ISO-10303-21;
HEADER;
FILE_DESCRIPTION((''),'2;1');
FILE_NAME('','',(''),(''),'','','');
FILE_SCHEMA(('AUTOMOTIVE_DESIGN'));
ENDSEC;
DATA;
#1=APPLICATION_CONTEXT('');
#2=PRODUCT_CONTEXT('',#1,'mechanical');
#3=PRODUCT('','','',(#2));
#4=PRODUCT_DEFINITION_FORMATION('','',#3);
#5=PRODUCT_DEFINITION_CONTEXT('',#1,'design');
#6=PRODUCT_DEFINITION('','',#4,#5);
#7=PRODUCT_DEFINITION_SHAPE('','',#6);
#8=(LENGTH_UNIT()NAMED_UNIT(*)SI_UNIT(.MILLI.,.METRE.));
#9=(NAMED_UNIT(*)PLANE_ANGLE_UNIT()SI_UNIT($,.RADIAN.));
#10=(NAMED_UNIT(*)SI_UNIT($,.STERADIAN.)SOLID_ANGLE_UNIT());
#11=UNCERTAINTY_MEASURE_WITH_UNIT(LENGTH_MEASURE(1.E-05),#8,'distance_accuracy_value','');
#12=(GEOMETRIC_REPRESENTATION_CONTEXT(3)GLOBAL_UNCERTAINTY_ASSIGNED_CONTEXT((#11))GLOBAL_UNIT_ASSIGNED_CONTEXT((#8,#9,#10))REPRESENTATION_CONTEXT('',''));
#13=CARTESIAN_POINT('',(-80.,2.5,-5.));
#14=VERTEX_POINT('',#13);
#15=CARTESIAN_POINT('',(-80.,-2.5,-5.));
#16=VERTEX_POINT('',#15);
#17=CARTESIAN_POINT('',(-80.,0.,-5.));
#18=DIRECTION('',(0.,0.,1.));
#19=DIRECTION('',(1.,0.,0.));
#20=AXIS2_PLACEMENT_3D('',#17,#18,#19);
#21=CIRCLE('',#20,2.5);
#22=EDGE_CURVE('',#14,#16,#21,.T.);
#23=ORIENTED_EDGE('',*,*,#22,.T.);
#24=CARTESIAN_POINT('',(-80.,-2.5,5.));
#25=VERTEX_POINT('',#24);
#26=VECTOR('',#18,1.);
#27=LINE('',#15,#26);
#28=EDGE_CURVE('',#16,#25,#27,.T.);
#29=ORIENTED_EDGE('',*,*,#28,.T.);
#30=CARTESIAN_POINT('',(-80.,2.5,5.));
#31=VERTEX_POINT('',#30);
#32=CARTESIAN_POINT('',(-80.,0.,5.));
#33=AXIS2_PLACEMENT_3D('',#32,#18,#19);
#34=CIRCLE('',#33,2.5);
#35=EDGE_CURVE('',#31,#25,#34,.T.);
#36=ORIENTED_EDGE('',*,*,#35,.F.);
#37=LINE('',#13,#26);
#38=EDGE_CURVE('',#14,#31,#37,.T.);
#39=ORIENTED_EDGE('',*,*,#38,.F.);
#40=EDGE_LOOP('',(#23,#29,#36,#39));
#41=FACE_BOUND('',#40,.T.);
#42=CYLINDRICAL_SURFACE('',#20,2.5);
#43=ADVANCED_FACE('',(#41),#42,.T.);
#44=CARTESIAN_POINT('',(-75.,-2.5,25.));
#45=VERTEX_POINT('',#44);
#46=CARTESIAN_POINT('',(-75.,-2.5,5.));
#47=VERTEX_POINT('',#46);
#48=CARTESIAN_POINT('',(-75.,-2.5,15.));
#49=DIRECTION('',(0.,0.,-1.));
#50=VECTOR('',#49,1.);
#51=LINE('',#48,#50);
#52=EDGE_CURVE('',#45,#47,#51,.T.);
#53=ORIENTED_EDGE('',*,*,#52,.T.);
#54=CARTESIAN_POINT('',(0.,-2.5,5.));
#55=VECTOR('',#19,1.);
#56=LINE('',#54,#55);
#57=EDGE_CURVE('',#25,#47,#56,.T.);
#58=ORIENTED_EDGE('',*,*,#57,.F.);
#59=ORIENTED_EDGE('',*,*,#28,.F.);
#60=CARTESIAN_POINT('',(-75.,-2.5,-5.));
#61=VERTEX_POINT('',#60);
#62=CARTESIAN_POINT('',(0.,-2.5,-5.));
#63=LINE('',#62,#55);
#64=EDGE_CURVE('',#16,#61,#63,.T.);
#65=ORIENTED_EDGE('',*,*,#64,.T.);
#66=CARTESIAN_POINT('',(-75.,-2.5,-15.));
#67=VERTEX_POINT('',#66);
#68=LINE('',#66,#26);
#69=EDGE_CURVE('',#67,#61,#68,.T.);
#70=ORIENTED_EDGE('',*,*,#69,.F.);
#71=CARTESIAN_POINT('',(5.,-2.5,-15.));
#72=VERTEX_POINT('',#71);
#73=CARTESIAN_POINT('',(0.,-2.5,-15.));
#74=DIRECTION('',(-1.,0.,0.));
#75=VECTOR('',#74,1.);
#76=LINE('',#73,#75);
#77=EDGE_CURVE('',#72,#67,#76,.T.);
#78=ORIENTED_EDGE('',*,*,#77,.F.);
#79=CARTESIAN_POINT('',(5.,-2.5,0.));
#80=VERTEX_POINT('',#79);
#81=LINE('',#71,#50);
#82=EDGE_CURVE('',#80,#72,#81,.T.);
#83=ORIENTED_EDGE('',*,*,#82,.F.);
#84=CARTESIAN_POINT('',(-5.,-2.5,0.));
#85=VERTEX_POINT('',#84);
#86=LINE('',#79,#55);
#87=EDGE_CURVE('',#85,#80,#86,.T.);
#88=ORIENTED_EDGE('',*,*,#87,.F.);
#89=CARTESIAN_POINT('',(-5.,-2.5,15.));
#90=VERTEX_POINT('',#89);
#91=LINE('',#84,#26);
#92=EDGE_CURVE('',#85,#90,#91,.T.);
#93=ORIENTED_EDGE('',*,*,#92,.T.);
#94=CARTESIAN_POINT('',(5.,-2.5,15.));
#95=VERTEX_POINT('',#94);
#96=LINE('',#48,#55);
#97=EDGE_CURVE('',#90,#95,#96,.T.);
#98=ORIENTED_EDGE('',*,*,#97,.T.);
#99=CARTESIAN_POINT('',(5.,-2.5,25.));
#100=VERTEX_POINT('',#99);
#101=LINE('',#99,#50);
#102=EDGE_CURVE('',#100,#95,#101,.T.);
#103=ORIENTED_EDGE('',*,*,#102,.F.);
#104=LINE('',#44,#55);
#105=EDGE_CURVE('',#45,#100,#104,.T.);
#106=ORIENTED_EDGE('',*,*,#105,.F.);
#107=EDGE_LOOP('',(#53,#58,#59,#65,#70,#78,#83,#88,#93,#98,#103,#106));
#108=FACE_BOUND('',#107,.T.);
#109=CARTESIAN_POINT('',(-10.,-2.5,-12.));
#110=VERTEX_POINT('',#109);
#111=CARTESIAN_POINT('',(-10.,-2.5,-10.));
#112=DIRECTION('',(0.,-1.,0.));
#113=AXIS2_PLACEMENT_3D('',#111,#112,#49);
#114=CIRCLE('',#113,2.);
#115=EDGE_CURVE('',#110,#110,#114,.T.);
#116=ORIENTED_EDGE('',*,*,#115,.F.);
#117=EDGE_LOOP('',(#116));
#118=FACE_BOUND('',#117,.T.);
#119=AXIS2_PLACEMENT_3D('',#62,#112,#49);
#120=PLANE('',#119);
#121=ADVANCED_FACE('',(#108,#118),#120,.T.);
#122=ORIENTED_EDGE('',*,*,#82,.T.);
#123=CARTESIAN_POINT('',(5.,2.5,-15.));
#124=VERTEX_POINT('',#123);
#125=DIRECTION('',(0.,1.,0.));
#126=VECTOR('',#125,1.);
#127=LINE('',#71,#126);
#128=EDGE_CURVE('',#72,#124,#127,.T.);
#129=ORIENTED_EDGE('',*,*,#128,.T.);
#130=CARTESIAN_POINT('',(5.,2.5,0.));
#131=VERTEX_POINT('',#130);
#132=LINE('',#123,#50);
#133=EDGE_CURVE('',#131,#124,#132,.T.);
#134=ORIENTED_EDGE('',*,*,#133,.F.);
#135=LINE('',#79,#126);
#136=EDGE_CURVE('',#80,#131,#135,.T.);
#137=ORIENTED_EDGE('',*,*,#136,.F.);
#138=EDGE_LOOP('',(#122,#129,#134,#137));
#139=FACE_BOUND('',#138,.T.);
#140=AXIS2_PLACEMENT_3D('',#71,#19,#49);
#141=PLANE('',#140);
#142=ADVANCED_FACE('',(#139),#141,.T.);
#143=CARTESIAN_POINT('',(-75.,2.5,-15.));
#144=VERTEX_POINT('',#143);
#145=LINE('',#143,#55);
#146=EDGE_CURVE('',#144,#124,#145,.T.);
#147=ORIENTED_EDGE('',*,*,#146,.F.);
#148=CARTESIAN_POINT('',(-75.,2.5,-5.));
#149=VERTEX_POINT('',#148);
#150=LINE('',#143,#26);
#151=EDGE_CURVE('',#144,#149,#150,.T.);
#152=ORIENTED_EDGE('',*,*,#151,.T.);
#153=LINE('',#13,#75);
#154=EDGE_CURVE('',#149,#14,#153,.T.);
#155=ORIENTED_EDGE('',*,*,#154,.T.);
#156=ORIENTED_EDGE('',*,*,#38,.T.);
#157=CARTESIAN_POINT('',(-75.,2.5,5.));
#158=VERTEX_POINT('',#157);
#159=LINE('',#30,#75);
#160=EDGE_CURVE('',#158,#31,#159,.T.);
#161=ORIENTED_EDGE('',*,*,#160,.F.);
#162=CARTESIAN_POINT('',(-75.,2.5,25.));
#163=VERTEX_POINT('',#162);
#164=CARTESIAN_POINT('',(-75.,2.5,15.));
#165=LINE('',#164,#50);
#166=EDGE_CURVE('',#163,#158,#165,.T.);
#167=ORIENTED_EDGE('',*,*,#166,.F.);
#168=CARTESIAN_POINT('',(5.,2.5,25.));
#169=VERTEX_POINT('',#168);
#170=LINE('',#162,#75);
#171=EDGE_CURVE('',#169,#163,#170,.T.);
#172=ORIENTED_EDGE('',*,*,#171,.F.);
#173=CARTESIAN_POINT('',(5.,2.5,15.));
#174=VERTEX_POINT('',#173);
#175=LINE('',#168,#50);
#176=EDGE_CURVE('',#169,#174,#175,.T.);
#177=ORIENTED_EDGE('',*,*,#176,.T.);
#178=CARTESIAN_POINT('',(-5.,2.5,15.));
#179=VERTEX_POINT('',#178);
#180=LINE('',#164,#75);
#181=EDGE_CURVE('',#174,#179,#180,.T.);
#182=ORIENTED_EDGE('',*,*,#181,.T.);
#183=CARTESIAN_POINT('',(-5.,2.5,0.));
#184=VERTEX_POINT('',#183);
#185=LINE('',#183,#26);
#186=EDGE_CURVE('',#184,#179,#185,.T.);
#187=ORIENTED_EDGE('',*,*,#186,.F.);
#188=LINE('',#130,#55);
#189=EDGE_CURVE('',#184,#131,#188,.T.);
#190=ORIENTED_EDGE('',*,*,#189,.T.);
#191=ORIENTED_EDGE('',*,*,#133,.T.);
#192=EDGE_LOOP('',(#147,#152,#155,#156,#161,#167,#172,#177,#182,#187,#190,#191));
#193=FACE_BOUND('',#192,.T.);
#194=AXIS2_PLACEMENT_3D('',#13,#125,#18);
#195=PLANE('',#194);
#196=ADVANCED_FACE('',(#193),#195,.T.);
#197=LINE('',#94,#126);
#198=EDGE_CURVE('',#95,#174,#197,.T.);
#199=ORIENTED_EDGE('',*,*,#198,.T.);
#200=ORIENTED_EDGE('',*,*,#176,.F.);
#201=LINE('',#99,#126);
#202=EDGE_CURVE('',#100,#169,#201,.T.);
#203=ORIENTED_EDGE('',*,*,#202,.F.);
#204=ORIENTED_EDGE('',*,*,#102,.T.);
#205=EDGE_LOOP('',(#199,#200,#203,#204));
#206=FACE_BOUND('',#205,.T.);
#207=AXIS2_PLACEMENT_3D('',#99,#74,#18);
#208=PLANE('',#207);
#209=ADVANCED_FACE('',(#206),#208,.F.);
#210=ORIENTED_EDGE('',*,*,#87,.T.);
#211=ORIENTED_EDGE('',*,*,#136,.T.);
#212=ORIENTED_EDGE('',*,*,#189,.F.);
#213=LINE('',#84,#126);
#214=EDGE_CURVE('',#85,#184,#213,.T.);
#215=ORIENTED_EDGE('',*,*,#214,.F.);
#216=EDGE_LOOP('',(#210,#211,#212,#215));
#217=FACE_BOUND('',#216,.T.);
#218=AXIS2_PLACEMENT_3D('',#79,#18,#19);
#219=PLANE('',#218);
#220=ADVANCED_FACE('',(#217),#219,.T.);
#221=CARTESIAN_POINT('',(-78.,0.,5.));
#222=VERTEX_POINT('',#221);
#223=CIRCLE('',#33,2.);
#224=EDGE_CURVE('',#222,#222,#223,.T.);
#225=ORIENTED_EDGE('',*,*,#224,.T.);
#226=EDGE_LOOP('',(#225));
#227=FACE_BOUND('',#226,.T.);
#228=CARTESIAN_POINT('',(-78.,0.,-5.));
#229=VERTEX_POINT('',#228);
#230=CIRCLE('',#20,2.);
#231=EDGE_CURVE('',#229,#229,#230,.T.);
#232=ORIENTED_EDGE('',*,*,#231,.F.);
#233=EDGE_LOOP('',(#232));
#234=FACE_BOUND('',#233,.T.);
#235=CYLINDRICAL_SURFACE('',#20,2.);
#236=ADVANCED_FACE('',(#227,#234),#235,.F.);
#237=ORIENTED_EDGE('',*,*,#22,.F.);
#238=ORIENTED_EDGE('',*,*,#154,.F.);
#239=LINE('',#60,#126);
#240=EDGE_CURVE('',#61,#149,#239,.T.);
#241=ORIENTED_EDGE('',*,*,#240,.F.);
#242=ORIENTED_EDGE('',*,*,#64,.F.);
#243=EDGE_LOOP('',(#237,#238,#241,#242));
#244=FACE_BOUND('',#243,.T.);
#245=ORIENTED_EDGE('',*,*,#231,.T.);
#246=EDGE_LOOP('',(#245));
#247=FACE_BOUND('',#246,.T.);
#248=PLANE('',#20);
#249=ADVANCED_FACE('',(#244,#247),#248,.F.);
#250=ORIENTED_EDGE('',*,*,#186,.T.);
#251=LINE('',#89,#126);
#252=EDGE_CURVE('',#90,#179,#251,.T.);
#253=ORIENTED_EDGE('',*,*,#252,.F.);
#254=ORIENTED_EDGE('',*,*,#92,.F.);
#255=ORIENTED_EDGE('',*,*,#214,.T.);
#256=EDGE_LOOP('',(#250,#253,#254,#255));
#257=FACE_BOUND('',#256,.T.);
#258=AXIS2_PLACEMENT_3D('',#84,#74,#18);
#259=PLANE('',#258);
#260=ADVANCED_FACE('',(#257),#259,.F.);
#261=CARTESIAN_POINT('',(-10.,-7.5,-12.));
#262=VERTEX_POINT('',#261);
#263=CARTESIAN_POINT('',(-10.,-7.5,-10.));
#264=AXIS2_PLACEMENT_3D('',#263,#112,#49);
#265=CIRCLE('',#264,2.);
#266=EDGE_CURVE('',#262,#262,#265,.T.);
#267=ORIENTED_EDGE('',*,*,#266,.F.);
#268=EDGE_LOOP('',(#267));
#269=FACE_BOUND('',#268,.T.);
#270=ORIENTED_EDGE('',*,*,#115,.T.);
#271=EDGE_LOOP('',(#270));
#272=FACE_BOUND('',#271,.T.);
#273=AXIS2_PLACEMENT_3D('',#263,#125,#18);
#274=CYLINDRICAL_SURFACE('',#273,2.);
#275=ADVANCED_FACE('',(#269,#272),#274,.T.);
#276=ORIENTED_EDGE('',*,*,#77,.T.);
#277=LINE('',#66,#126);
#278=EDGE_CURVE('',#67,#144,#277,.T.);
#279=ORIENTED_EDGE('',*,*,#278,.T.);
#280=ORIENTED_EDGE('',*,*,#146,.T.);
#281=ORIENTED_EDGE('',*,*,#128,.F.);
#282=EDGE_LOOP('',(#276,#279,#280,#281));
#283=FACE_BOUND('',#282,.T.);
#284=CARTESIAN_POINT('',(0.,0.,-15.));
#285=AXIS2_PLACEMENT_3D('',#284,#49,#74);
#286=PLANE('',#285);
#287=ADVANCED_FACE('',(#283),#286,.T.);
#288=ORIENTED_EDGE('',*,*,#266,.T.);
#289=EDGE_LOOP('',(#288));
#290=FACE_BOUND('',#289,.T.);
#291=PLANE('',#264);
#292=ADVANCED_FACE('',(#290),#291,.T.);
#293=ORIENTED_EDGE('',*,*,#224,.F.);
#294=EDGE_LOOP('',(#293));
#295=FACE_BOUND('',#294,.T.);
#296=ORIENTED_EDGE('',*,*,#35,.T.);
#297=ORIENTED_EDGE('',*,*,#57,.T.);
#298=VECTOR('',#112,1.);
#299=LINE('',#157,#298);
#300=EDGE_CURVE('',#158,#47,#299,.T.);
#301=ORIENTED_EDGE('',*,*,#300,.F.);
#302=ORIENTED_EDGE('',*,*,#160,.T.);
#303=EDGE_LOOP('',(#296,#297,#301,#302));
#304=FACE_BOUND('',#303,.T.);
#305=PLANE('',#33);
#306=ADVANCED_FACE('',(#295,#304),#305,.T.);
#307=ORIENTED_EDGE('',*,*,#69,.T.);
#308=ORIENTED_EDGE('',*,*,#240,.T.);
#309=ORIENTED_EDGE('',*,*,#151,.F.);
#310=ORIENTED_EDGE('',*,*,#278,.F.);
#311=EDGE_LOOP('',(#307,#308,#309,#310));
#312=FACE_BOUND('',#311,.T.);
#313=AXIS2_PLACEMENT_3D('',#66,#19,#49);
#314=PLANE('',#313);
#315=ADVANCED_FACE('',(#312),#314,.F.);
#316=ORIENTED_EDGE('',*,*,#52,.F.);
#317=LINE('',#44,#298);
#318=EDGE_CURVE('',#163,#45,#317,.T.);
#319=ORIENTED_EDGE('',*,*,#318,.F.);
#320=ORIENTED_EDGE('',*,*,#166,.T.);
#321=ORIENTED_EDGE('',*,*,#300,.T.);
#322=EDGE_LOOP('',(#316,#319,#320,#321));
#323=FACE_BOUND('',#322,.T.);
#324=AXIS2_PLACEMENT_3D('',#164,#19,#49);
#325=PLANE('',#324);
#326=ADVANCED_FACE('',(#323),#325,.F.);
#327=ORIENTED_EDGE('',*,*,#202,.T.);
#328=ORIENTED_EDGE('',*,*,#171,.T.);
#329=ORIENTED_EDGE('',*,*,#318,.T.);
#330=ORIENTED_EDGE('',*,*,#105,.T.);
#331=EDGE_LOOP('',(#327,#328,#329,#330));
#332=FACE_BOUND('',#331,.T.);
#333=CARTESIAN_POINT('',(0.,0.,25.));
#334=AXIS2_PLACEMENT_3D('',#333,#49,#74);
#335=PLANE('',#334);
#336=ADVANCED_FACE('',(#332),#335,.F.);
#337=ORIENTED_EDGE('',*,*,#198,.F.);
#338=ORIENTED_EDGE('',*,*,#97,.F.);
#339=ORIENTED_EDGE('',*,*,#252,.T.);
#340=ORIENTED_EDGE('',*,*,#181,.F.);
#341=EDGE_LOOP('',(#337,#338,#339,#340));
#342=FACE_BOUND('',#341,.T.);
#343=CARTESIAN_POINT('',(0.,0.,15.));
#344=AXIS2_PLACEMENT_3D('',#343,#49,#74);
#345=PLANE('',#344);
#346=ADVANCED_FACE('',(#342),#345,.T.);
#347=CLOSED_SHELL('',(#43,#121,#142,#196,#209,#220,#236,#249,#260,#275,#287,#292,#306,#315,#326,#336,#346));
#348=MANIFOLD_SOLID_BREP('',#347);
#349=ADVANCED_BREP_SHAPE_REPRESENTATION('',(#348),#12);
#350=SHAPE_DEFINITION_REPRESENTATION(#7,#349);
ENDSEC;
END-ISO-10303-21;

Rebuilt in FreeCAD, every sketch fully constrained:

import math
import FreeCAD as App
import Part
import Sketcher

V = App.Vector


def add_polygon(sketch, points):
    """Adds a closed chain of lines whose ends are joined by coincident constraints."""
    first, n = sketch.GeometryCount, len(points)
    for a, b in zip(points, points[1:] + points[:1]):
        sketch.addGeometry(Part.LineSegment(App.Vector(*a, 0), App.Vector(*b, 0)), False)
    for i in range(n):
        sketch.addConstraint(Sketcher.Constraint("Coincident", first + i, 2, first + (i + 1) % n, 1))

doc = App.newDocument("Part")
body = doc.addObject("PartDesign::Body", "Body")

sketch1 = body.newObject("Sketcher::SketchObject", "Sketch")
sketch1.AttachmentSupport = (doc.getObject("XY_Plane"), [""])
sketch1.MapMode = "FlatFace"
sketch1.addGeometry(Part.LineSegment(V(0, 2.5, 0), V(-80, 2.5, 0)), False)
sketch1.addGeometry(Part.ArcOfCircle(Part.Circle(V(-80, 0, 0), V(0, 0, 1), 2.5), math.radians(90), math.radians(270)), False)
sketch1.addGeometry(Part.LineSegment(V(-80, -2.5, 0), V(0, -2.5, 0)), False)
sketch1.addGeometry(Part.LineSegment(V(0, -2.5, 0), V(0, 2.5, 0)), False)
sketch1.addGeometry(Part.Circle(V(-80, 0, 0), V(0, 0, 1), 2), False)
sketch1.addConstraint(Sketcher.Constraint("Tangent", 0, 2, 1, 1))
sketch1.addConstraint(Sketcher.Constraint("Tangent", 1, 2, 2, 1))
sketch1.addConstraint(Sketcher.Constraint("Coincident", 2, 2, 3, 1))
sketch1.addConstraint(Sketcher.Constraint("Coincident", 3, 2, 0, 1))
sketch1.addConstraint(Sketcher.Constraint("Horizontal", 0))
sketch1.addConstraint(Sketcher.Constraint("Horizontal", 2))
sketch1.addConstraint(Sketcher.Constraint("Vertical", 3))
sketch1.addConstraint(Sketcher.Constraint("Coincident", 4, 3, 1, 3))
sketch1.addConstraint(Sketcher.Constraint("Symmetric", 2, 2, 3, 2, -1, 1))
sketch1.addConstraint(Sketcher.Constraint("Diameter", 4, 4.0))
sketch1.addConstraint(Sketcher.Constraint("Radius", 1, 2.5))
sketch1.addConstraint(Sketcher.Constraint("DistanceX", 0, 2, 0, 1, 80.0))
pad1 = body.newObject("PartDesign::Pad", "Pad")
pad1.Profile = sketch1
pad1.Type = "TwoLengths"
pad1.Length = 5
pad1.Length2 = 5

sketch2 = body.newObject("Sketcher::SketchObject", "Sketch001")
sketch2.AttachmentSupport = (doc.getObject("XY_Plane"), [""])
sketch2.MapMode = "FlatFace"
sketch2.AttachmentOffset = App.Placement(V(0, 0, 5), App.Rotation())
add_polygon(sketch2, [(-75, 2), (-75, -2), (0, -2), (0, 2)])
sketch2.addConstraint(Sketcher.Constraint("Vertical", 0))
sketch2.addConstraint(Sketcher.Constraint("Horizontal", 1))
sketch2.addConstraint(Sketcher.Constraint("Vertical", 2))
sketch2.addConstraint(Sketcher.Constraint("Horizontal", 3))
sketch2.addConstraint(Sketcher.Constraint("Symmetric", 1, 2, 2, 2, -1, 1))
sketch2.addConstraint(Sketcher.Constraint("DistanceX", 1, 1, 1, 2, 75.0))
sketch2.addConstraint(Sketcher.Constraint("DistanceY", 0, 2, 0, 1, 5.0))
pad2 = body.newObject("PartDesign::Pad", "Pad001")
pad2.Profile = sketch2
pad2.Length = 10

sketch3 = body.newObject("Sketcher::SketchObject", "Sketch002")
sketch3.AttachmentSupport = (doc.getObject("XY_Plane"), [""])
sketch3.MapMode = "FlatFace"
sketch3.AttachmentOffset = App.Placement(V(0, 0, -5), App.Rotation())
add_polygon(sketch3, [(0, 2), (0, -2), (-75, -2), (-75, 2)])
sketch3.addConstraint(Sketcher.Constraint("Vertical", 0))
sketch3.addConstraint(Sketcher.Constraint("Horizontal", 1))
sketch3.addConstraint(Sketcher.Constraint("Vertical", 2))
sketch3.addConstraint(Sketcher.Constraint("Horizontal", 3))
sketch3.addConstraint(Sketcher.Constraint("Symmetric", 0, 2, 3, 2, -1, 1))
sketch3.addConstraint(Sketcher.Constraint("DistanceX", 1, 2, 1, 1, 75.0))
sketch3.addConstraint(Sketcher.Constraint("DistanceY", 0, 2, 0, 1, 5.0))
pad3 = body.newObject("PartDesign::Pad", "Pad002")
pad3.Profile = sketch3
pad3.Length = 10
pad3.Reversed = True

sketch4 = body.newObject("Sketcher::SketchObject", "Sketch003")
sketch4.AttachmentSupport = (doc.getObject("XZ_Plane"), [""])
sketch4.MapMode = "FlatFace"
sketch4.AttachmentOffset = App.Placement(V(0, 0, -2.5), App.Rotation())
add_polygon(sketch4, [(0, -15), (0, 0), (5, 0), (5, -15)])
sketch4.addConstraint(Sketcher.Constraint("Vertical", 0))
sketch4.addConstraint(Sketcher.Constraint("Horizontal", 1))
sketch4.addConstraint(Sketcher.Constraint("Vertical", 2))
sketch4.addConstraint(Sketcher.Constraint("Horizontal", 3))
sketch4.addConstraint(Sketcher.Constraint("Coincident", 0, 2, -1, 1))
sketch4.addConstraint(Sketcher.Constraint("DistanceX", 1, 1, 1, 2, 5.0))
sketch4.addConstraint(Sketcher.Constraint("DistanceY", 0, 1, 0, 2, 15.0))
pad4 = body.newObject("PartDesign::Pad", "Pad003")
pad4.Profile = sketch4
pad4.Length = 5

sketch5 = body.newObject("Sketcher::SketchObject", "Sketch004")
sketch5.AttachmentSupport = (doc.getObject("XZ_Plane"), [""])
sketch5.MapMode = "FlatFace"
sketch5.AttachmentOffset = App.Placement(V(0, 0, -2.5), App.Rotation())
add_polygon(sketch5, [(-5, 0), (-5, 15), (0, 15), (0, 0)])
sketch5.addConstraint(Sketcher.Constraint("Vertical", 0))
sketch5.addConstraint(Sketcher.Constraint("Horizontal", 1))
sketch5.addConstraint(Sketcher.Constraint("Vertical", 2))
sketch5.addConstraint(Sketcher.Constraint("Horizontal", 3))
sketch5.addConstraint(Sketcher.Constraint("Coincident", 2, 2, -1, 1))
sketch5.addConstraint(Sketcher.Constraint("DistanceX", 1, 1, 1, 2, 5.0))
sketch5.addConstraint(Sketcher.Constraint("DistanceY", 0, 1, 0, 2, 15.0))
pocket1 = body.newObject("PartDesign::Pocket", "Pocket")
pocket1.Profile = sketch5
pocket1.Length = 5
pocket1.Reversed = True

sketch6 = body.newObject("Sketcher::SketchObject", "Sketch005")
sketch6.AttachmentSupport = (doc.getObject("XY_Plane"), [""])
sketch6.MapMode = "FlatFace"
sketch6.AttachmentOffset = App.Placement(V(0, 0, 15), App.Rotation())
add_polygon(sketch6, [(-75, 2), (-75, -2), (5, -2), (5, 2)])
sketch6.addConstraint(Sketcher.Constraint("Vertical", 0))
sketch6.addConstraint(Sketcher.Constraint("Horizontal", 1))
sketch6.addConstraint(Sketcher.Constraint("Vertical", 2))
sketch6.addConstraint(Sketcher.Constraint("Horizontal", 3))
sketch6.addConstraint(Sketcher.Constraint("DistanceX", 1, 1, 1, 2, 80.0))
sketch6.addConstraint(Sketcher.Constraint("DistanceY", 0, 2, 0, 1, 5.0))
sketch6.addConstraint(Sketcher.Constraint("DistanceX", 0, 2, -1, 1, 75.0))
sketch6.addConstraint(Sketcher.Constraint("DistanceY", 0, 2, -1, 1, 2.5))
pad5 = body.newObject("PartDesign::Pad", "Pad004")
pad5.Profile = sketch6
pad5.Length = 10

sketch7 = body.newObject("Sketcher::SketchObject", "Sketch006")
sketch7.AttachmentSupport = (doc.getObject("XZ_Plane"), [""])
sketch7.MapMode = "FlatFace"
sketch7.AttachmentOffset = App.Placement(V(0, 0, 2.5), App.Rotation())
sketch7.addGeometry(Part.Circle(V(-10, -10, 0), V(0, 0, 1), 2), False)
sketch7.addConstraint(Sketcher.Constraint("Diameter", 0, 4.0))
sketch7.addConstraint(Sketcher.Constraint("DistanceX", 0, 3, -1, 1, 10.0))
sketch7.addConstraint(Sketcher.Constraint("DistanceY", 0, 3, -1, 1, 10.0))
pad6 = body.newObject("PartDesign::Pad", "Pad005")
pad6.Profile = sketch7
pad6.Length = 5

doc.recompute()
